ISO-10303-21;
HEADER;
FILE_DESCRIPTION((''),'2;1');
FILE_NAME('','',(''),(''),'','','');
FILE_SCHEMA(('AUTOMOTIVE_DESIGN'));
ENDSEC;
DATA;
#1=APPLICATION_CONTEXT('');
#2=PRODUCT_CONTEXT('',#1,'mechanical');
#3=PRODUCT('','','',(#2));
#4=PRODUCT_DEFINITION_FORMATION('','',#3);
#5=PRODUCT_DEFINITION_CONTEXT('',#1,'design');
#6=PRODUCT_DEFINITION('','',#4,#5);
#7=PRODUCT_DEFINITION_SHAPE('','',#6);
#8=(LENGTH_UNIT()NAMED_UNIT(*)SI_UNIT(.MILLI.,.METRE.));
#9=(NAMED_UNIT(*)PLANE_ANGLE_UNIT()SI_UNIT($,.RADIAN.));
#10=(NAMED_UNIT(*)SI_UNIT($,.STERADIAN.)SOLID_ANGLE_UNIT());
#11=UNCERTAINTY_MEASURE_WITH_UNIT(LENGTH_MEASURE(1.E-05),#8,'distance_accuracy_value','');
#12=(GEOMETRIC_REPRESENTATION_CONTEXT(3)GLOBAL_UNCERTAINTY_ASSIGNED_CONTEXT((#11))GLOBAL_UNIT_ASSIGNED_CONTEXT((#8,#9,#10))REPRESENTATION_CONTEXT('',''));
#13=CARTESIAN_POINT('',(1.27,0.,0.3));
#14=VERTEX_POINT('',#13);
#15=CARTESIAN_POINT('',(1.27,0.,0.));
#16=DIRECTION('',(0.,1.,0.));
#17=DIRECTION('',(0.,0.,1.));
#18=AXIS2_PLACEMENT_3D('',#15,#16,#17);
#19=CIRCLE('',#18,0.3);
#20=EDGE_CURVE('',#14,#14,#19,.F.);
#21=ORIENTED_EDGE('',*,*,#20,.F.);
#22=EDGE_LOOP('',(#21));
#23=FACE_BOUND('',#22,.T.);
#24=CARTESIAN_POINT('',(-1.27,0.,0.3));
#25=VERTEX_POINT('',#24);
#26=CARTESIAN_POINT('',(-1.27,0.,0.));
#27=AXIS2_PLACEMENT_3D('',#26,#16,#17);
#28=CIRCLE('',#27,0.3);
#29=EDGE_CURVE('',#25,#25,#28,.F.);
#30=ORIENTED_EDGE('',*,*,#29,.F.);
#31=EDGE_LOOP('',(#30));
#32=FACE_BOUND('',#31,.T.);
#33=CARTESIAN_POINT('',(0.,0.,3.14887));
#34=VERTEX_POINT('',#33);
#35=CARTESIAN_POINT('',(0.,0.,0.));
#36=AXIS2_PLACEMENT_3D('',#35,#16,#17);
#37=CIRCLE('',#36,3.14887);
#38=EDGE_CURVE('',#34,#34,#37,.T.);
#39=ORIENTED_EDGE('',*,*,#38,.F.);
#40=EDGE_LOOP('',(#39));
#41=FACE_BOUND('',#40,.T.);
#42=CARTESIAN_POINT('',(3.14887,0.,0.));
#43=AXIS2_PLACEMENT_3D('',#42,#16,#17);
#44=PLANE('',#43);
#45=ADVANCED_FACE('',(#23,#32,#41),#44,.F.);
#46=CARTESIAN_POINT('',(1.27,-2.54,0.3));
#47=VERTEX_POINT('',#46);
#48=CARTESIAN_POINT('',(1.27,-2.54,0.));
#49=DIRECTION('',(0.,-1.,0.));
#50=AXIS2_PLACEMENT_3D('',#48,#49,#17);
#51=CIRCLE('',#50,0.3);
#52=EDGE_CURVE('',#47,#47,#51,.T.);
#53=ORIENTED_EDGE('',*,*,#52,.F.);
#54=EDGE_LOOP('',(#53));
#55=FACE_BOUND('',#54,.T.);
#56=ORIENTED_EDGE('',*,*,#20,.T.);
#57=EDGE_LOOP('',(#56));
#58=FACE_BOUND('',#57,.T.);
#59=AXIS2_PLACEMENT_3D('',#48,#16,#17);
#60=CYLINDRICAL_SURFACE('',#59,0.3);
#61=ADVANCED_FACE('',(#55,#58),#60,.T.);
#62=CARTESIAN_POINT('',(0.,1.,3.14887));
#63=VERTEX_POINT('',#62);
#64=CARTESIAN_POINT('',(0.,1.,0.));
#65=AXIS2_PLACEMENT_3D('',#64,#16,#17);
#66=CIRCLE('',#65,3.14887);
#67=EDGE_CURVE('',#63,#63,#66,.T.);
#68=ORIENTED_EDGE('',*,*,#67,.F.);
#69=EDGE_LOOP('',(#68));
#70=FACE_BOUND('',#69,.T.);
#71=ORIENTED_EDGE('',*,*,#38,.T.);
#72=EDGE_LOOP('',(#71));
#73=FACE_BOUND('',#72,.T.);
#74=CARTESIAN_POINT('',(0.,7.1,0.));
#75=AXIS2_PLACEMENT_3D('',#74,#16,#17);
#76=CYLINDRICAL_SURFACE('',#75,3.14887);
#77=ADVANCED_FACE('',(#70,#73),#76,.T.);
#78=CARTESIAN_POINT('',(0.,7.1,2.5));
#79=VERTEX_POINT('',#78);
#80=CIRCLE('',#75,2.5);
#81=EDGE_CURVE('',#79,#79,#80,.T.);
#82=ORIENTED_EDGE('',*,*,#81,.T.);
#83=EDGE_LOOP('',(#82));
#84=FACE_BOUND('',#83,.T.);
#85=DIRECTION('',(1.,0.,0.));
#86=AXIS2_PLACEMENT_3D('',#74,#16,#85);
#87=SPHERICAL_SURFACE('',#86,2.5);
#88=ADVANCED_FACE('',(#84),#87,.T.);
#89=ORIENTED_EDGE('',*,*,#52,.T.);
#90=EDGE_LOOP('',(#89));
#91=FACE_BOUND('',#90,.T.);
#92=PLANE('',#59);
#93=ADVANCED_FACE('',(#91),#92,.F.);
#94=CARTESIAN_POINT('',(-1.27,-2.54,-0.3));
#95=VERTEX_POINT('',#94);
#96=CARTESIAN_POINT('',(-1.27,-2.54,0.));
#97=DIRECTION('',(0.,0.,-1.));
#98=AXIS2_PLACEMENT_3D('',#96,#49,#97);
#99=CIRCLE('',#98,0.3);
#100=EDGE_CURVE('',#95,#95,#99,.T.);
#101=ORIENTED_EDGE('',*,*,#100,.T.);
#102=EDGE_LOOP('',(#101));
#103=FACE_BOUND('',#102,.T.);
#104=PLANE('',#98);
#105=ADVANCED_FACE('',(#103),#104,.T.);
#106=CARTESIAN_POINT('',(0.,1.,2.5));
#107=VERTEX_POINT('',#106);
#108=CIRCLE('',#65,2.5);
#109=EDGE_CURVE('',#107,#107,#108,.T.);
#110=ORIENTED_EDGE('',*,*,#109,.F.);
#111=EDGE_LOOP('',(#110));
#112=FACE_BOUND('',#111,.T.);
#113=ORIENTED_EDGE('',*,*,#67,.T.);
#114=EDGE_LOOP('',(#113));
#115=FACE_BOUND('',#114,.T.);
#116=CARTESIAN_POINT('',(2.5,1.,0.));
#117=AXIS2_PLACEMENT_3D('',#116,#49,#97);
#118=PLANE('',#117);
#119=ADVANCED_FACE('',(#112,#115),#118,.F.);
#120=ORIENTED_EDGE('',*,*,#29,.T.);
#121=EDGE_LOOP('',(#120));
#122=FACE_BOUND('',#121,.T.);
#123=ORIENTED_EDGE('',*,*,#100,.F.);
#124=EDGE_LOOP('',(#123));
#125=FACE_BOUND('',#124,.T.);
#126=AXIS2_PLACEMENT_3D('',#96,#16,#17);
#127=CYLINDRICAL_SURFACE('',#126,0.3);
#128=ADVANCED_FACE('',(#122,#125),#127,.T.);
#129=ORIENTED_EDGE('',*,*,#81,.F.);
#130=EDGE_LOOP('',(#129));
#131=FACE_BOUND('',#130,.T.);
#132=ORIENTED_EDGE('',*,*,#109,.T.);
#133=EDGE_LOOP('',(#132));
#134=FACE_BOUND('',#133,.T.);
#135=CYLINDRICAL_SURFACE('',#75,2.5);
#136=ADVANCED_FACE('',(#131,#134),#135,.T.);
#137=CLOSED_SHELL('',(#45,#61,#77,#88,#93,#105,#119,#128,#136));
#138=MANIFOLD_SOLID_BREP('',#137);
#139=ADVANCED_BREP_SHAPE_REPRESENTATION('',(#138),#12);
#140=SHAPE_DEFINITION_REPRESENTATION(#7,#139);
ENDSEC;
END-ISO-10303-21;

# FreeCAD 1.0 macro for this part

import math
import FreeCAD as App
import Part
import Sketcher
from FreeCAD import Vector
Q = App.Units.Quantity

doc = App.newDocument("Part")
body = doc.addObject("PartDesign::Body", "Body")

# Sketch on XY plane
sketch1 = body.newObject("Sketcher::SketchObject", "Sketch")
sketch1.AttachmentSupport = (doc.getObject("XY_Plane"), [""])
sketch1.MapMode = "FlatFace"
sketch1.addGeometry([
    Part.LineSegment(Vector(2.5, 1, 0), Vector(2.5, 7.1, 0)),  # 0
    Part.ArcOfCircle(Part.Circle(Vector(0, 7.1, 0), Vector(0, 0, 1), 2.5), math.radians(0), math.radians(90)),  # 1
    Part.LineSegment(Vector(0, 9.6, 0), Vector(0, 0, 0)),  # 2
    Part.LineSegment(Vector(0, 0, 0), Vector(3.1, 0, 0)),  # 3
    Part.LineSegment(Vector(3.1, 0, 0), Vector(3.1, 1, 0)),  # 4
    Part.LineSegment(Vector(3.1, 1, 0), Vector(2.5, 1, 0)),  # 5
], False)
sketch1.addConstraint([
    Sketcher.Constraint("Tangent", 0, 2, 1, 1),
    Sketcher.Constraint("Coincident", 1, 2, 2, 1),
    Sketcher.Constraint("Coincident", 2, 2, 3, 1),
    Sketcher.Constraint("Coincident", 3, 2, 4, 1),
    Sketcher.Constraint("Coincident", 4, 2, 5, 1),
    Sketcher.Constraint("Coincident", 5, 2, 0, 1),
    Sketcher.Constraint("Vertical", 0),
    Sketcher.Constraint("Vertical", 2),
    Sketcher.Constraint("Horizontal", 3),
    Sketcher.Constraint("Vertical", 4),
    Sketcher.Constraint("Horizontal", 5),
    Sketcher.Constraint("Coincident", 2, 2, -1, 1),
    Sketcher.Constraint("PointOnObject", 1, 3, -2),
    Sketcher.Constraint("Radius", 1, Q("2.5 mm")),
    Sketcher.Constraint("DistanceY", 4, 1, 4, 2, Q("1 mm")),
    Sketcher.Constraint("DistanceY", 0, 1, 0, 2, Q("6.1 mm")),
    Sketcher.Constraint("DistanceX", 3, 1, 3, 2, Q("3.14887 mm")),
])
revolution = body.newObject("PartDesign::Revolution", "Revolution")
revolution.Profile = sketch1
revolution.ReferenceAxis = (sketch1, ["V_Axis"])
revolution.Angle = 360

# Sketch on XZ plane
sketch2 = body.newObject("Sketcher::SketchObject", "Sketch001")
sketch2.AttachmentSupport = (doc.getObject("XZ_Plane"), [""])
sketch2.MapMode = "FlatFace"
sketch2.addGeometry([
    Part.Circle(Vector(-1.27, 0, 0), Vector(0, 0, 1), 0.3),
    Part.Circle(Vector(1.27, 0, 0), Vector(0, 0, 1), 0.3),
], False)
sketch2.addConstraint([
    Sketcher.Constraint("Equal", 0, 1),
    Sketcher.Constraint("Symmetric", 0, 3, 1, 3, -1, 1),
    Sketcher.Constraint("PointOnObject", 0, 3, -1),
    Sketcher.Constraint("Diameter", 0, Q("0.6 mm")),
    Sketcher.Constraint("DistanceX", 0, 3, -1, 1, Q("1.27 mm")),
])
pad1 = body.newObject("PartDesign::Pad", "Pad")
pad1.Profile = sketch2
pad1.Length = 2.54

doc.recompute()
